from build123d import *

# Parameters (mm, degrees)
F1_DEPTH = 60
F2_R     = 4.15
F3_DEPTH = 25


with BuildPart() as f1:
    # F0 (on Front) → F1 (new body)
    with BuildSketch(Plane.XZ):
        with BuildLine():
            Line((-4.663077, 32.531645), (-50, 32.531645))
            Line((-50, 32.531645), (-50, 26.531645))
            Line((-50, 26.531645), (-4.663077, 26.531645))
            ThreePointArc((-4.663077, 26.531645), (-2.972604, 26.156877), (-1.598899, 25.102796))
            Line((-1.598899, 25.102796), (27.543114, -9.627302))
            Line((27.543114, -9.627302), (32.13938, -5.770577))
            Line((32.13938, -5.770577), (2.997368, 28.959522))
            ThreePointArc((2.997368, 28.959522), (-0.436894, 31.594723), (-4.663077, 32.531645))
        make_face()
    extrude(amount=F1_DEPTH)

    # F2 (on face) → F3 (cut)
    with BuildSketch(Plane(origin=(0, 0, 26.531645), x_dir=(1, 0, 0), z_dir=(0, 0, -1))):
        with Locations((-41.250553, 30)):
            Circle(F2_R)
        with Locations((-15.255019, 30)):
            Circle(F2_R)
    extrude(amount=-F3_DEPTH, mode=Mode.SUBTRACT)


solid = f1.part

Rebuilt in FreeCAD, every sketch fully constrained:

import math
import FreeCAD as App
import Part
import Sketcher
from FreeCAD import Vector
Q = App.Units.Quantity

doc = App.newDocument("Part")
body = doc.addObject("PartDesign::Body", "Body")

sketch1 = body.newObject("Sketcher::SketchObject", "Sketch")
sketch1.AttachmentSupport = (doc.getObject("XZ_Plane"), [""])
sketch1.MapMode = "FlatFace"
sketch1.addGeometry(Part.LineSegment(Vector(-4.7, 32.5, 0), Vector(-50, 32.5, 0)), False)
sketch1.addGeometry(Part.LineSegment(Vector(-50, 32.5, 0), Vector(-50, 26.5, 0)), False)
sketch1.addGeometry(Part.LineSegment(Vector(-50, 26.5, 0), Vector(-4.7, 26.5, 0)), False)
sketch1.addGeometry(Part.ArcOfCircle(Part.Circle(Vector(-4.7, 22.5, 0), Vector(0, 0, 1), 4), math.radians(40), math.radians(90)), False)
sketch1.addGeometry(Part.LineSegment(Vector(-1.6, 25.1, 0), Vector(27.5, -9.6, 0)), False)
sketch1.addGeometry(Part.LineSegment(Vector(27.5, -9.6, 0), Vector(32.1, -5.8, 0)), False)
sketch1.addGeometry(Part.LineSegment(Vector(32.1, -5.8, 0), Vector(3, 29, 0)), False)
sketch1.addGeometry(Part.ArcOfCircle(Part.Circle(Vector(-4.7, 22.5, 0), Vector(0, 0, 1), 10), math.radians(40), math.radians(90)), False)
sketch1.addConstraint(Sketcher.Constraint("Coincident", 0, 2, 1, 1))
sketch1.addConstraint(Sketcher.Constraint("Coincident", 1, 2, 2, 1))
sketch1.addConstraint(Sketcher.Constraint("Tangent", 2, 2, 3, 2))
sketch1.addConstraint(Sketcher.Constraint("Tangent", 3, 1, 4, 1))
sketch1.addConstraint(Sketcher.Constraint("Coincident", 4, 2, 5, 1))
sketch1.addConstraint(Sketcher.Constraint("Coincident", 5, 2, 6, 1))
sketch1.addConstraint(Sketcher.Constraint("Tangent", 6, 2, 7, 1))
sketch1.addConstraint(Sketcher.Constraint("Tangent", 7, 2, 0, 1))
sketch1.addConstraint(Sketcher.Constraint("Horizontal", 0))
sketch1.addConstraint(Sketcher.Constraint("Vertical", 1))
sketch1.addConstraint(Sketcher.Constraint("Horizontal", 2))
sketch1.addConstraint(Sketcher.Constraint("Coincident", 7, 3, 3, 3))
sketch1.addConstraint(Sketcher.Constraint("Perpendicular", 4, 5))
sketch1.addConstraint(Sketcher.Constraint("Perpendicular", 5, 6))
sketch1.addConstraint(Sketcher.Constraint("DistanceY", 1, 2, 1, 1, 6.0))
sketch1.addConstraint(Sketcher.Constraint("Angle", 4, Q("-49.999999 deg")))
sketch1.addConstraint(Sketcher.Constraint("DistanceX", 0, 2, -1, 1, 50.0))
sketch1.addConstraint(Sketcher.Constraint("Radius", 3, 3.999996))
sketch1.addConstraint(Sketcher.Constraint("DistanceX", 3, 1, -1, 1, 1.598899))
sketch1.addConstraint(Sketcher.Constraint("DistanceY", 5, 2, 6, 2, 34.730099))
sketch1.addConstraint(Sketcher.Constraint("DistanceY", -1, 1, 3, 3, 22.531649))
pad1 = body.newObject("PartDesign::Pad", "Pad")
pad1.Profile = sketch1
pad1.Length = 60

sketch2 = body.newObject("Sketcher::SketchObject", "Sketch001")
sketch2.AttachmentSupport = (doc.getObject("XY_Plane"), [""])
sketch2.MapMode = "FlatFace"
sketch2.AttachmentOffset = App.Placement(Vector(0, 0, 26.531645), App.Rotation())
sketch2.addGeometry(Part.Circle(Vector(-41.3, -30, 0), Vector(0, 0, 1), 4.2), False)
sketch2.addGeometry(Part.Circle(Vector(-15.3, -30, 0), Vector(0, 0, 1), 4.2), False)
sketch2.addConstraint(Sketcher.Constraint("Equal", 0, 1))
sketch2.addConstraint(Sketcher.Constraint("Horizontal", 0, 3, 1, 3))
sketch2.addConstraint(Sketcher.Constraint("Diameter", 0, 8.3))
sketch2.addConstraint(Sketcher.Constraint("DistanceY", 0, 3, -1, 1, 30.0))
sketch2.addConstraint(Sketcher.Constraint("DistanceX", 1, 3, -1, 1, 15.255019))
sketch2.addConstraint(Sketcher.Constraint("DistanceX", 0, 3, -1, 1, 41.250553))
pocket1 = body.newObject("PartDesign::Pocket", "Pocket")
pocket1.Profile = sketch2
pocket1.Length = 25
pocket1.Reversed = True

doc.recompute()
